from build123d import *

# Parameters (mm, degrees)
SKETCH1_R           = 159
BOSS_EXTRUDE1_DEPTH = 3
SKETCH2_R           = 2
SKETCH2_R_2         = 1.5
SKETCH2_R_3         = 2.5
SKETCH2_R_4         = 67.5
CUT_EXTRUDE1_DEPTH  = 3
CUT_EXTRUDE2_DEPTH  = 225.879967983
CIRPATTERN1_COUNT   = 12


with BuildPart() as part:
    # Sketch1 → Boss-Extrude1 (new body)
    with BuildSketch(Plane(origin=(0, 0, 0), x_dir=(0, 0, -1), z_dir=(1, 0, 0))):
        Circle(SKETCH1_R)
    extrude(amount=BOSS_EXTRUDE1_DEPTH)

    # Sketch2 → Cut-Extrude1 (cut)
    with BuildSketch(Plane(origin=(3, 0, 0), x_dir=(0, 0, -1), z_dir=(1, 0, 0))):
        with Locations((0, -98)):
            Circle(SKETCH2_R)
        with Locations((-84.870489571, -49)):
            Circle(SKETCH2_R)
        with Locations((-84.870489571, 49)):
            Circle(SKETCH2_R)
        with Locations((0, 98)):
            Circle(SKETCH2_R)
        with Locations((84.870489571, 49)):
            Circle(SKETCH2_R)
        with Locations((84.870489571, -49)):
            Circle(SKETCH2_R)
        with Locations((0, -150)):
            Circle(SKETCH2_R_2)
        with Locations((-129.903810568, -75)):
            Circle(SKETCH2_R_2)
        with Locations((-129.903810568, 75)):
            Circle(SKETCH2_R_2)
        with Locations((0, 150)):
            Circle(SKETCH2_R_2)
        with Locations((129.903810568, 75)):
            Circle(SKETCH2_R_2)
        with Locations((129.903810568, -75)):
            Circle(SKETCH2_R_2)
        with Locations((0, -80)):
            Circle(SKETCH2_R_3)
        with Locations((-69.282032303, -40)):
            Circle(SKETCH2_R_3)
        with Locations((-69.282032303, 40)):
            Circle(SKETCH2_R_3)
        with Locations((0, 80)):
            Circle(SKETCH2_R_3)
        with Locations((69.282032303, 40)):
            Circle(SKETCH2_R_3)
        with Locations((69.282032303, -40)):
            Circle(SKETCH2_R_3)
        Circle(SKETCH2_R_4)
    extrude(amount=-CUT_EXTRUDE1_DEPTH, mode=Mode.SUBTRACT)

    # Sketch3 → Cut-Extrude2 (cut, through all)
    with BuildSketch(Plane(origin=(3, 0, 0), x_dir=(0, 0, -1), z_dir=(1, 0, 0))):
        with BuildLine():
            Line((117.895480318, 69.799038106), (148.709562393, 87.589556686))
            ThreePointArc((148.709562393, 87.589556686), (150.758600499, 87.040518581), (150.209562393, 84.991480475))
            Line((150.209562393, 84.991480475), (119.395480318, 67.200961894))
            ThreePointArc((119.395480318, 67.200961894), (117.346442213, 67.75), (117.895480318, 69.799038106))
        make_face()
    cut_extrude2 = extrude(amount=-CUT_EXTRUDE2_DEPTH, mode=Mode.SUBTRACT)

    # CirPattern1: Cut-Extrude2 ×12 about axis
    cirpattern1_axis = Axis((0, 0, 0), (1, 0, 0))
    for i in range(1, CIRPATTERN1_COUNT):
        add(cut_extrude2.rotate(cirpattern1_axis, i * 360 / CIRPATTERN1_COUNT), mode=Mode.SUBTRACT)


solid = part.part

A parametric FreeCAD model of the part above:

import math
import FreeCAD as App
import Part
import Sketcher
Q = App.Units.Quantity

doc = App.newDocument("Part")
params = doc.addObject("Spreadsheet::Sheet", "Params")
for row, (alias, value) in enumerate([
    ("sketch1_diameter", "318 mm"),
    ("pad1_length", "3 mm"),
    ("sketch2_diameter", "4 mm"),
    ("sketch2_diameter2", "3 mm"),
    ("sketch2_diameter3", "5 mm"),
    ("sketch2_diameter4", "135 mm"),
    ("pocket1_length", "3 mm"),
    ("sketch3_radius", "1.5 mm"),
], start=1):
    params.set(f"A{row}", alias)
    params.set(f"B{row}", "=" + value)
    params.setAlias(f"B{row}", alias)

body = doc.addObject("PartDesign::Body", "Body")

# Sketch on YZ plane
sketch1 = body.newObject("Sketcher::SketchObject", "Sketch")
sketch1.AttachmentSupport = (doc.getObject("YZ_Plane"), [""])
sketch1.MapMode = "FlatFace"
sketch1.addGeometry(Part.Circle(App.Vector(0, 0, 0), App.Vector(0, 0, 1), 159), False)
sketch1.addConstraint(Sketcher.Constraint("Coincident", 0, 3, -1, 1))
sketch1.addConstraint(Sketcher.Constraint("Diameter", 0, Q("318 mm")))
sketch1.setExpression("Constraints[1]", "Params.sketch1_diameter")
pad1 = body.newObject("PartDesign::Pad", "Pad")
pad1.Profile = sketch1
pad1.setExpression("Length", "Params.pad1_length")

# Sketch on YZ plane
sketch2 = body.newObject("Sketcher::SketchObject", "Sketch001")
sketch2.AttachmentSupport = (doc.getObject("YZ_Plane"), [""])
sketch2.MapMode = "FlatFace"
sketch2.AttachmentOffset = App.Placement(App.Vector(0, 0, 3), App.Rotation())
sketch2.addGeometry(Part.Circle(App.Vector(-98, 0, 0), App.Vector(0, 0, 1), 2), False)
sketch2.addGeometry(Part.Circle(App.Vector(-49, 84.9, 0), App.Vector(0, 0, 1), 2), False)
sketch2.addGeometry(Part.Circle(App.Vector(49, 84.9, 0), App.Vector(0, 0, 1), 2), False)
sketch2.addGeometry(Part.Circle(App.Vector(98, 0, 0), App.Vector(0, 0, 1), 2), False)
sketch2.addGeometry(Part.Circle(App.Vector(49, -84.9, 0), App.Vector(0, 0, 1), 2), False)
sketch2.addGeometry(Part.Circle(App.Vector(-49, -84.9, 0), App.Vector(0, 0, 1), 2), False)
sketch2.addGeometry(Part.Circle(App.Vector(-150, 0, 0), App.Vector(0, 0, 1), 1.5), False)
sketch2.addGeometry(Part.Circle(App.Vector(-75, 129.9, 0), App.Vector(0, 0, 1), 1.5), False)
sketch2.addGeometry(Part.Circle(App.Vector(75, 129.9, 0), App.Vector(0, 0, 1), 1.5), False)
sketch2.addGeometry(Part.Circle(App.Vector(150, 0, 0), App.Vector(0, 0, 1), 1.5), False)
sketch2.addGeometry(Part.Circle(App.Vector(75, -129.9, 0), App.Vector(0, 0, 1), 1.5), False)
sketch2.addGeometry(Part.Circle(App.Vector(-75, -129.9, 0), App.Vector(0, 0, 1), 1.5), False)
sketch2.addGeometry(Part.Circle(App.Vector(-80, 0, 0), App.Vector(0, 0, 1), 2.5), False)
sketch2.addGeometry(Part.Circle(App.Vector(-40, 69.3, 0), App.Vector(0, 0, 1), 2.5), False)
sketch2.addGeometry(Part.Circle(App.Vector(40, 69.3, 0), App.Vector(0, 0, 1), 2.5), False)
sketch2.addGeometry(Part.Circle(App.Vector(80, 0, 0), App.Vector(0, 0, 1), 2.5), False)
sketch2.addGeometry(Part.Circle(App.Vector(40, -69.3, 0), App.Vector(0, 0, 1), 2.5), False)
sketch2.addGeometry(Part.Circle(App.Vector(-40, -69.3, 0), App.Vector(0, 0, 1), 2.5), False)
sketch2.addGeometry(Part.Circle(App.Vector(0, 0, 0), App.Vector(0, 0, 1), 67.5), False)
sketch2.addConstraint(Sketcher.Constraint("Coincident", 18, 3, -1, 1))
sketch2.addConstraint(Sketcher.Constraint("Equal", 0, 1))
sketch2.addConstraint(Sketcher.Constraint("Equal", 1, 2))
sketch2.addConstraint(Sketcher.Constraint("Equal", 2, 3))
sketch2.addConstraint(Sketcher.Constraint("Equal", 3, 4))
sketch2.addConstraint(Sketcher.Constraint("Equal", 4, 5))
sketch2.addConstraint(Sketcher.Constraint("Equal", 6, 7))
sketch2.addConstraint(Sketcher.Constraint("Equal", 7, 8))
sketch2.addConstraint(Sketcher.Constraint("Equal", 8, 9))
sketch2.addConstraint(Sketcher.Constraint("Equal", 9, 10))
sketch2.addConstraint(Sketcher.Constraint("Equal", 10, 11))
sketch2.addConstraint(Sketcher.Constraint("Equal", 12, 13))
sketch2.addConstraint(Sketcher.Constraint("Equal", 13, 14))
sketch2.addConstraint(Sketcher.Constraint("Equal", 14, 15))
sketch2.addConstraint(Sketcher.Constraint("Equal", 15, 16))
sketch2.addConstraint(Sketcher.Constraint("Equal", 16, 17))
sketch2.addConstraint(Sketcher.Constraint("Symmetric", 0, 3, 3, 3, -1, 1))
sketch2.addConstraint(Sketcher.Constraint("Symmetric", 1, 3, 4, 3, -1, 1))
sketch2.addConstraint(Sketcher.Constraint("Symmetric", 2, 3, 5, 3, -1, 1))
sketch2.addConstraint(Sketcher.Constraint("Symmetric", 6, 3, 9, 3, -1, 1))
sketch2.addConstraint(Sketcher.Constraint("Symmetric", 7, 3, 10, 3, -1, 1))
sketch2.addConstraint(Sketcher.Constraint("Symmetric", 8, 3, 11, 3, -1, 1))
sketch2.addConstraint(Sketcher.Constraint("Symmetric", 12, 3, 15, 3, -1, 1))
sketch2.addConstraint(Sketcher.Constraint("Symmetric", 13, 3, 16, 3, -1, 1))
sketch2.addConstraint(Sketcher.Constraint("Symmetric", 14, 3, 17, 3, -1, 1))
sketch2.addConstraint(Sketcher.Constraint("Symmetric", 1, 3, 2, 3, -2))
sketch2.addConstraint(Sketcher.Constraint("Symmetric", 7, 3, 8, 3, -2))
sketch2.addConstraint(Sketcher.Constraint("Symmetric", 13, 3, 14, 3, -2))
sketch2.addConstraint(Sketcher.Constraint("PointOnObject", 0, 3, -1))
sketch2.addConstraint(Sketcher.Constraint("PointOnObject", 6, 3, -1))
sketch2.addConstraint(Sketcher.Constraint("PointOnObject", 12, 3, -1))
sketch2.addConstraint(Sketcher.Constraint("Diameter", 0, Q("4 mm")))
sketch2.addConstraint(Sketcher.Constraint("Diameter", 6, Q("3 mm")))
sketch2.addConstraint(Sketcher.Constraint("Diameter", 12, Q("5 mm")))
sketch2.addConstraint(Sketcher.Constraint("Diameter", 18, Q("135 mm")))
sketch2.addConstraint(Sketcher.Constraint("DistanceX", 0, 3, -1, 1, Q("98 mm")))
sketch2.addConstraint(Sketcher.Constraint("DistanceX", 1, 3, -1, 1, Q("49 mm")))
sketch2.addConstraint(Sketcher.Constraint("DistanceX", 6, 3, -1, 1, Q("150 mm")))
sketch2.addConstraint(Sketcher.Constraint("DistanceX", 7, 3, -1, 1, Q("75 mm")))
sketch2.addConstraint(Sketcher.Constraint("DistanceX", 12, 3, -1, 1, Q("80 mm")))
sketch2.addConstraint(Sketcher.Constraint("DistanceX", 13, 3, -1, 1, Q("40 mm")))
sketch2.addConstraint(Sketcher.Constraint("DistanceY", -1, 1, 1, 3, Q("84.87049 mm")))
sketch2.addConstraint(Sketcher.Constraint("DistanceY", -1, 1, 7, 3, Q("129.903811 mm")))
sketch2.addConstraint(Sketcher.Constraint("DistanceY", 13, 3, 7, 3, Q("60.621778 mm")))
sketch2.setExpression("Constraints[31]", "Params.sketch2_diameter")
sketch2.setExpression("Constraints[32]", "Params.sketch2_diameter2")
sketch2.setExpression("Constraints[33]", "Params.sketch2_diameter3")
sketch2.setExpression("Constraints[34]", "Params.sketch2_diameter4")
pocket1 = body.newObject("PartDesign::Pocket", "Pocket")
pocket1.Profile = sketch2
pocket1.setExpression("Length", "Params.pocket1_length")

# Sketch on YZ plane
sketch3 = body.newObject("Sketcher::SketchObject", "Sketch002")
sketch3.AttachmentSupport = (doc.getObject("YZ_Plane"), [""])
sketch3.MapMode = "FlatFace"
sketch3.AttachmentOffset = App.Placement(App.Vector(0, 0, 3), App.Rotation())
sketch3.addGeometry(Part.LineSegment(App.Vector(87.6, -148.7, 0), App.Vector(69.8, -117.9, 0)), False)
sketch3.addGeometry(Part.ArcOfCircle(Part.Circle(App.Vector(68.5, -118.6, 0), App.Vector(0, 0, 1), 1.5), math.radians(30), math.radians(210)), False)
sketch3.addGeometry(Part.LineSegment(App.Vector(67.2, -119.4, 0), App.Vector(85, -150.2, 0)), False)
sketch3.addGeometry(Part.ArcOfCircle(Part.Circle(App.Vector(86.3, -149.5, 0), App.Vector(0, 0, 1), 1.5), math.radians(-150), math.radians(30)), False)
sketch3.addConstraint(Sketcher.Constraint("Tangent", 0, 2, 1, 1))
sketch3.addConstraint(Sketcher.Constraint("Tangent", 1, 2, 2, 1))
sketch3.addConstraint(Sketcher.Constraint("Tangent", 2, 2, 3, 1))
sketch3.addConstraint(Sketcher.Constraint("Tangent", 3, 2, 0, 1))
sketch3.addConstraint(Sketcher.Constraint("Equal", 1, 3))
sketch3.addConstraint(Sketcher.Constraint("Radius", 1, Q("1.5 mm")))
sketch3.addConstraint(Sketcher.Constraint("Angle", 0, Q("120 deg")))
sketch3.addConstraint(Sketcher.Constraint("DistanceX", -1, 1, 1, 3, Q("68.5 mm")))
sketch3.addConstraint(Sketcher.Constraint("DistanceY", 1, 3, -1, 1, Q("118.64548 mm")))
sketch3.addConstraint(Sketcher.Constraint("DistanceX", -1, 1, 3, 3, Q("86.290519 mm")))
sketch3.setExpression("Constraints[5]", "Params.sketch3_radius")
pocket2 = body.newObject("PartDesign::Pocket", "Pocket001")
pocket2.Profile = sketch3
pocket2.Type = "ThroughAll"
doc.recompute()

polarpattern = body.newObject("PartDesign::PolarPattern", "PolarPattern")
polarpattern.Originals = [pocket2]
polarpattern.Axis = (doc.getObject("X_Axis"), [""])
polarpattern.Angle = 360
polarpattern.Occurrences = 12
body.Tip = polarpattern

doc.recompute()
